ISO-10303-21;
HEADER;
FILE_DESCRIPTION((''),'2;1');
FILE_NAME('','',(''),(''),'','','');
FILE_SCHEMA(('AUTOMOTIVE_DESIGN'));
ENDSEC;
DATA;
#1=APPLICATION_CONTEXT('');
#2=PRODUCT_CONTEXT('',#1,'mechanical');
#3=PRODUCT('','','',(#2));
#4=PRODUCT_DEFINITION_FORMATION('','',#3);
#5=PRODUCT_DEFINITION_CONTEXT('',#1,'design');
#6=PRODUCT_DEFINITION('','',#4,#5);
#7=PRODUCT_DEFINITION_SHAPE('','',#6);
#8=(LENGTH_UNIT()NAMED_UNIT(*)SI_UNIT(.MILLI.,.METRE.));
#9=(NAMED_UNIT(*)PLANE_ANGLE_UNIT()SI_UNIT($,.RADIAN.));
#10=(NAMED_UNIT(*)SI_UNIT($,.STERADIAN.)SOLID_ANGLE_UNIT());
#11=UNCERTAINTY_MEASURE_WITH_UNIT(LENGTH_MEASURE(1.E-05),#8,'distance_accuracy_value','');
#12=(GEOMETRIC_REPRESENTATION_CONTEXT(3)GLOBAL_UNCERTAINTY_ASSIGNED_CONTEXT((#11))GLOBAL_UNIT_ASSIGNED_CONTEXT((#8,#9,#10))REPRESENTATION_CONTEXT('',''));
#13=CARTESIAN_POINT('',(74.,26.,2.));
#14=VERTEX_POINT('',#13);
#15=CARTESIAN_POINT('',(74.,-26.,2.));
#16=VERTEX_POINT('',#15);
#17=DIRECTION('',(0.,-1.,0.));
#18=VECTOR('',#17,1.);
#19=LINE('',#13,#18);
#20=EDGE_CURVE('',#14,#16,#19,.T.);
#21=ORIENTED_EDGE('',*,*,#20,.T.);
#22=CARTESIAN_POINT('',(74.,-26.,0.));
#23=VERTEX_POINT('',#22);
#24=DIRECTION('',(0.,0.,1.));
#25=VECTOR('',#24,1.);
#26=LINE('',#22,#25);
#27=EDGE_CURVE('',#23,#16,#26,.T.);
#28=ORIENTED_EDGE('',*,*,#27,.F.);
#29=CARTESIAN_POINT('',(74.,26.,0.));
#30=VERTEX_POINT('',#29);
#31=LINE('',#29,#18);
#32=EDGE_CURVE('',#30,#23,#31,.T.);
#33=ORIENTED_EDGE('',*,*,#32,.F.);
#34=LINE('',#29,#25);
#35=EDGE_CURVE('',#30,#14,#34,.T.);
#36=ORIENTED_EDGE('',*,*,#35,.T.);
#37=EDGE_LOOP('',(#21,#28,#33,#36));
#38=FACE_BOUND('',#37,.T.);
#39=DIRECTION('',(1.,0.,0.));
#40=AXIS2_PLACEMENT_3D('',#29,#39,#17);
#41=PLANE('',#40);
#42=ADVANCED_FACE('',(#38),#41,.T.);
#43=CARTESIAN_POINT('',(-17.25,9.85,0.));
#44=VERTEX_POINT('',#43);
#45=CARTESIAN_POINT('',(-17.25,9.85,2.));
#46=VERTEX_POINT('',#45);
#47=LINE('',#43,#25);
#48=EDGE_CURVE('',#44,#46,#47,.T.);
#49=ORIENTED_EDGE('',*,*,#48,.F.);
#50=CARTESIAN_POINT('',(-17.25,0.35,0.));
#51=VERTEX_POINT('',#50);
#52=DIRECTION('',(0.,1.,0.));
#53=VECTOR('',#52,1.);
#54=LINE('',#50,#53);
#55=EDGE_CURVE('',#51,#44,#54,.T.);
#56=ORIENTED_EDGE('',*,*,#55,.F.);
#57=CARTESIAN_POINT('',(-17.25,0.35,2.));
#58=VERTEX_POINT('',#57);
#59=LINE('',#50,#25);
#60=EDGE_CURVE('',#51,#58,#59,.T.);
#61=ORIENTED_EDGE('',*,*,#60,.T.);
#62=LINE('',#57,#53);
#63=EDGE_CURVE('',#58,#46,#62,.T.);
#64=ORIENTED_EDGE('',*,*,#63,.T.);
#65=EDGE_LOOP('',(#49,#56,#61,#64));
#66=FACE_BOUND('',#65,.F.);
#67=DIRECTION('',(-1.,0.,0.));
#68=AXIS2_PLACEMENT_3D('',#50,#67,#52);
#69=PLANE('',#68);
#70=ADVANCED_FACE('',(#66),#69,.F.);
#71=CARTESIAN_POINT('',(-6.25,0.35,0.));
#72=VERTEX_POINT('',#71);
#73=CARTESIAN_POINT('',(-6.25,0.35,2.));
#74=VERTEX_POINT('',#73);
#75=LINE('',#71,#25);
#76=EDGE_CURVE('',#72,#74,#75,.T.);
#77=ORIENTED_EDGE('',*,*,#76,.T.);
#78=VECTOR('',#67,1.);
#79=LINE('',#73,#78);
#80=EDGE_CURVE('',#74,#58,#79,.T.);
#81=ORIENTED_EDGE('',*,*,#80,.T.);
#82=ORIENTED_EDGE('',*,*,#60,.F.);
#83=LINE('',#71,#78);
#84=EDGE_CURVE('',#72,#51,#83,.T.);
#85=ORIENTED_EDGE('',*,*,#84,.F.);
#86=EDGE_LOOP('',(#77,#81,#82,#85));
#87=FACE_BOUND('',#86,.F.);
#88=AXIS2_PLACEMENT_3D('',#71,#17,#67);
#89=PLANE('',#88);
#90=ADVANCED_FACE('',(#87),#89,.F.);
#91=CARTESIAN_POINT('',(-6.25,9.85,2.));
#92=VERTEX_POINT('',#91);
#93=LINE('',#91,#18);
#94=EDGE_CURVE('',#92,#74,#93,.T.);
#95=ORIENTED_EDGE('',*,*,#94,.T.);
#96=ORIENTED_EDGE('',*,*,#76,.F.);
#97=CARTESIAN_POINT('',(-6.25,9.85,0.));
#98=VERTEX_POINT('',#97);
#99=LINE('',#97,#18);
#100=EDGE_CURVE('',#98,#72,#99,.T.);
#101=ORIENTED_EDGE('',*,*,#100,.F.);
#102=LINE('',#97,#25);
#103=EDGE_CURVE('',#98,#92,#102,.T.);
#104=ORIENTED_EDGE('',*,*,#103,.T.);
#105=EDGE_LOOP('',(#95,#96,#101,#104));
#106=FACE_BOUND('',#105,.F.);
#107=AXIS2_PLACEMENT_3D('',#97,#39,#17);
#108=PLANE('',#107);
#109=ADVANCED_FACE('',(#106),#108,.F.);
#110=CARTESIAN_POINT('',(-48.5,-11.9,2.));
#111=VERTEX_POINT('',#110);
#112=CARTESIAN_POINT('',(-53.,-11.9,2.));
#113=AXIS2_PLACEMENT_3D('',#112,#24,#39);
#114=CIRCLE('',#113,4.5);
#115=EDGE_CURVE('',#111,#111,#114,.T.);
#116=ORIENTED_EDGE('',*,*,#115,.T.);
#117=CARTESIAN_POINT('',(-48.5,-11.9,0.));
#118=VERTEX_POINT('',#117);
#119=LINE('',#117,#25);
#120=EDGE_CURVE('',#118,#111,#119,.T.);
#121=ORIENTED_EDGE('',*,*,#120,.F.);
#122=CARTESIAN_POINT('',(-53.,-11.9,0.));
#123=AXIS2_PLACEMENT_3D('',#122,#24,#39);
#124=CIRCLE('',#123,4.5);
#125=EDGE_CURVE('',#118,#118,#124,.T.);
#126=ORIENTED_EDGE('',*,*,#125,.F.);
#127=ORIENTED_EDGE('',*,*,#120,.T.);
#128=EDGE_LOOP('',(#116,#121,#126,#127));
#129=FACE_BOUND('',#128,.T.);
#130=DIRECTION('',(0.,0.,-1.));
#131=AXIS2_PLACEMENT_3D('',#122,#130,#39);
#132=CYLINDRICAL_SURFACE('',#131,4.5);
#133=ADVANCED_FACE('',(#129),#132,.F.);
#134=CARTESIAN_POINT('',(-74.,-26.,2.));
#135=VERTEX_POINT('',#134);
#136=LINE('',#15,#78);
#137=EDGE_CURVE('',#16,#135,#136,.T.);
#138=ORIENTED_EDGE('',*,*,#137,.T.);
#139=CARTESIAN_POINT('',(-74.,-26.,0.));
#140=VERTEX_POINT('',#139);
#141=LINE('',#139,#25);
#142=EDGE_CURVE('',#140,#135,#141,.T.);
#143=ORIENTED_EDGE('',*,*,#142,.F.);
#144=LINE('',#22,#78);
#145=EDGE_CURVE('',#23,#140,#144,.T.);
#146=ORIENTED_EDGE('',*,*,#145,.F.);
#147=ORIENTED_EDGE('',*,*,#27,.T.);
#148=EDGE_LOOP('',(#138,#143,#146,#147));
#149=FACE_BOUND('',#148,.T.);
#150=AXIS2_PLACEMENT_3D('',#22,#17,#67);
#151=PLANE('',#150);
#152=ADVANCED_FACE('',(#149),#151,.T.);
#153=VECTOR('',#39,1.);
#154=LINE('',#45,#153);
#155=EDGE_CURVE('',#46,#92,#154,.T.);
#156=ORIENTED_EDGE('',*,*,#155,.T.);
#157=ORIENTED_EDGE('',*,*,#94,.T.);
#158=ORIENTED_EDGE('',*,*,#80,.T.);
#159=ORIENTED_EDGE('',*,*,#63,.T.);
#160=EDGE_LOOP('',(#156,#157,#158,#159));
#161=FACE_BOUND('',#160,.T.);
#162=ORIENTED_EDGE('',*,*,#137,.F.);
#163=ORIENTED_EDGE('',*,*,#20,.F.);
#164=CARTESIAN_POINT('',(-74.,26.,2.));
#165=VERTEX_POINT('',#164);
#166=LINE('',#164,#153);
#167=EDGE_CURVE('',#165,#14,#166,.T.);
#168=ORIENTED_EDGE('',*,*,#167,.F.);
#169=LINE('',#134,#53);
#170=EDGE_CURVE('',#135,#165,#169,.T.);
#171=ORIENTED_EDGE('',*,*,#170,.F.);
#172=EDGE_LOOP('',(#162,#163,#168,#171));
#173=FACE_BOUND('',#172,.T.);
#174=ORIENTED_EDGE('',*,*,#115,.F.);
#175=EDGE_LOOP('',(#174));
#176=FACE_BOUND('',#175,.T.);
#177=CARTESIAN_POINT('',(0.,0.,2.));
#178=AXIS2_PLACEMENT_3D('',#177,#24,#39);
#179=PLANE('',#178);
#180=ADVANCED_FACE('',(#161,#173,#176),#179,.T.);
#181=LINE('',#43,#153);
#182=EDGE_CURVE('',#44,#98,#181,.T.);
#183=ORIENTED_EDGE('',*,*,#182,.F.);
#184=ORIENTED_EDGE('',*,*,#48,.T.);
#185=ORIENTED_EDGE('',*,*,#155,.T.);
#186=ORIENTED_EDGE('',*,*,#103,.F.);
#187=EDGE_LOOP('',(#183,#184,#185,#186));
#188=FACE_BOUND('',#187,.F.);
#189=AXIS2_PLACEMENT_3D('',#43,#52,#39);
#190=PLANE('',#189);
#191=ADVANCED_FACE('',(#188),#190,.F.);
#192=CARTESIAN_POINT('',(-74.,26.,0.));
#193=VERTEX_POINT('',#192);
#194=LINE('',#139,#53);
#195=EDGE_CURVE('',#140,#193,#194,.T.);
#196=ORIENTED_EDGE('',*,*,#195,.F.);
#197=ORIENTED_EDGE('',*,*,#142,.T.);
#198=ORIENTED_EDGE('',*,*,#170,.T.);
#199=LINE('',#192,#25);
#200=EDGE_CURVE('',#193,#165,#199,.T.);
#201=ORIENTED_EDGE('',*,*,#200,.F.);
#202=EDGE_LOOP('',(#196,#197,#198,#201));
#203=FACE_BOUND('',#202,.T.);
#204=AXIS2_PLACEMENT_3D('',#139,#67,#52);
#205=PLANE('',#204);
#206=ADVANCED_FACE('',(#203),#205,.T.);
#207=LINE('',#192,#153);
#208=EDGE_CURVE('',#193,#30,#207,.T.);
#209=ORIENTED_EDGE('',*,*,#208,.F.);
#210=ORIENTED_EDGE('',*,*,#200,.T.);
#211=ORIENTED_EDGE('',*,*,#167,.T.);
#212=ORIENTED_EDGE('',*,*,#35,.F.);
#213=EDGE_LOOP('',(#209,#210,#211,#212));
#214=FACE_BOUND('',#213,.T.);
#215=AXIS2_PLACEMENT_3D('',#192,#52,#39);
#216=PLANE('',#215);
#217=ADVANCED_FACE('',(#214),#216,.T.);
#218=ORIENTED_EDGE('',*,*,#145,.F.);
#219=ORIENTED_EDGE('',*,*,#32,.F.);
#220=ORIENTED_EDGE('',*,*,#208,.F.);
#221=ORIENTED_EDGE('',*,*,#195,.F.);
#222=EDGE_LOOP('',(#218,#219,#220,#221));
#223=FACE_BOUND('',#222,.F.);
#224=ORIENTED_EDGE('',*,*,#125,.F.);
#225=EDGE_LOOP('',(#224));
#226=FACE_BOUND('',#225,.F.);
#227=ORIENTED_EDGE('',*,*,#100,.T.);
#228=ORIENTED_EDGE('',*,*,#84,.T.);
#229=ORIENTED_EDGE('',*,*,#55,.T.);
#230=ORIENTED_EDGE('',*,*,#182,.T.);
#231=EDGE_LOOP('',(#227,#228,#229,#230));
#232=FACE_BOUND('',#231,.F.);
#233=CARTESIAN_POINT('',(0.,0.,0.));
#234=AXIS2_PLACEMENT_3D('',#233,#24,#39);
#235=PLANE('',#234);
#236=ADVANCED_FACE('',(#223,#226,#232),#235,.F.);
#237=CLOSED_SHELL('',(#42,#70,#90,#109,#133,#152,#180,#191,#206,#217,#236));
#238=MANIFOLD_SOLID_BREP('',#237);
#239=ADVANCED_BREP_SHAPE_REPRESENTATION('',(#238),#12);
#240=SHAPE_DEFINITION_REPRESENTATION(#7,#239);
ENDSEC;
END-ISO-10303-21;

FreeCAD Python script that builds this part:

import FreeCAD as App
import Part
import Sketcher
from FreeCAD import Vector
Q = App.Units.Quantity


def add_polygon(sketch, points):
    """Adds a closed chain of lines whose ends are joined by coincident constraints."""
    first, n = sketch.GeometryCount, len(points)
    for a, b in zip(points, points[1:] + points[:1]):
        sketch.addGeometry(Part.LineSegment(App.Vector(*a, 0), App.Vector(*b, 0)), False)
    for i in range(n):
        sketch.addConstraint(Sketcher.Constraint("Coincident", first + i, 2, first + (i + 1) % n, 1))

doc = App.newDocument("Part")
params = doc.addObject("Spreadsheet::Sheet", "Params")
for row, (alias, value) in enumerate([
    ("sketch1_diameter", "9 mm"),
    ("sketch1_width", "148 mm"),
    ("sketch1_width2", "11 mm"),
    ("sketch1_height", "52 mm"),
    ("sketch1_height2", "9.5 mm"),
    ("pad1_length", "2 mm"),
], start=1):
    params.set(f"A{row}", alias)
    params.set(f"B{row}", "=" + value)
    params.setAlias(f"B{row}", alias)

body = doc.addObject("PartDesign::Body", "Body")

sketch1 = body.newObject("Sketcher::SketchObject", "Sketch")
sketch1.AttachmentSupport = (doc.getObject("XY_Plane"), [""])
sketch1.MapMode = "FlatFace"
add_polygon(sketch1, [(-74, -26), (74, -26), (74, 26), (-74, 26)])
sketch1.addGeometry(Part.Circle(Vector(-53, -11.9, 0), Vector(0, 0, 1), 4.5), False)
add_polygon(sketch1, [(-6.2, 9.8), (-6.2, 0.3), (-17.2, 0.3), (-17.2, 9.8)])
sketch1.addConstraint([
    Sketcher.Constraint("Horizontal", 0),
    Sketcher.Constraint("Vertical", 1),
    Sketcher.Constraint("Horizontal", 2),
    Sketcher.Constraint("Vertical", 3),
    Sketcher.Constraint("Vertical", 5),
    Sketcher.Constraint("Horizontal", 6),
    Sketcher.Constraint("Vertical", 7),
    Sketcher.Constraint("Horizontal", 8),
    Sketcher.Constraint("Symmetric", 0, 2, 2, 2, -1, 1),
    Sketcher.Constraint("Diameter", 4, Q("9 mm")),
    Sketcher.Constraint("DistanceX", 0, 1, 0, 2, Q("148 mm")),
    Sketcher.Constraint("DistanceX", 6, 2, 6, 1, Q("11 mm")),
    Sketcher.Constraint("DistanceY", 1, 1, 1, 2, Q("52 mm")),
    Sketcher.Constraint("DistanceY", 5, 2, 5, 1, Q("9.5 mm")),
    Sketcher.Constraint("DistanceX", 2, 2, 4, 3, Q("21 mm")),
    Sketcher.Constraint("DistanceY", 4, 3, 1, 2, Q("37.9 mm")),
    Sketcher.Constraint("DistanceX", 5, 2, -1, 1, Q("6.25 mm")),
    Sketcher.Constraint("DistanceY", -1, 1, 5, 2, Q("0.35 mm")),
])
sketch1.setExpression("Constraints[17]", "Params.sketch1_diameter")
sketch1.setExpression("Constraints[18]", "Params.sketch1_width")
sketch1.setExpression("Constraints[19]", "Params.sketch1_width2")
sketch1.setExpression("Constraints[20]", "Params.sketch1_height")
sketch1.setExpression("Constraints[21]", "Params.sketch1_height2")
pad1 = body.newObject("PartDesign::Pad", "Pad")
pad1.Profile = sketch1
pad1.setExpression("Length", "Params.pad1_length")

doc.recompute()
